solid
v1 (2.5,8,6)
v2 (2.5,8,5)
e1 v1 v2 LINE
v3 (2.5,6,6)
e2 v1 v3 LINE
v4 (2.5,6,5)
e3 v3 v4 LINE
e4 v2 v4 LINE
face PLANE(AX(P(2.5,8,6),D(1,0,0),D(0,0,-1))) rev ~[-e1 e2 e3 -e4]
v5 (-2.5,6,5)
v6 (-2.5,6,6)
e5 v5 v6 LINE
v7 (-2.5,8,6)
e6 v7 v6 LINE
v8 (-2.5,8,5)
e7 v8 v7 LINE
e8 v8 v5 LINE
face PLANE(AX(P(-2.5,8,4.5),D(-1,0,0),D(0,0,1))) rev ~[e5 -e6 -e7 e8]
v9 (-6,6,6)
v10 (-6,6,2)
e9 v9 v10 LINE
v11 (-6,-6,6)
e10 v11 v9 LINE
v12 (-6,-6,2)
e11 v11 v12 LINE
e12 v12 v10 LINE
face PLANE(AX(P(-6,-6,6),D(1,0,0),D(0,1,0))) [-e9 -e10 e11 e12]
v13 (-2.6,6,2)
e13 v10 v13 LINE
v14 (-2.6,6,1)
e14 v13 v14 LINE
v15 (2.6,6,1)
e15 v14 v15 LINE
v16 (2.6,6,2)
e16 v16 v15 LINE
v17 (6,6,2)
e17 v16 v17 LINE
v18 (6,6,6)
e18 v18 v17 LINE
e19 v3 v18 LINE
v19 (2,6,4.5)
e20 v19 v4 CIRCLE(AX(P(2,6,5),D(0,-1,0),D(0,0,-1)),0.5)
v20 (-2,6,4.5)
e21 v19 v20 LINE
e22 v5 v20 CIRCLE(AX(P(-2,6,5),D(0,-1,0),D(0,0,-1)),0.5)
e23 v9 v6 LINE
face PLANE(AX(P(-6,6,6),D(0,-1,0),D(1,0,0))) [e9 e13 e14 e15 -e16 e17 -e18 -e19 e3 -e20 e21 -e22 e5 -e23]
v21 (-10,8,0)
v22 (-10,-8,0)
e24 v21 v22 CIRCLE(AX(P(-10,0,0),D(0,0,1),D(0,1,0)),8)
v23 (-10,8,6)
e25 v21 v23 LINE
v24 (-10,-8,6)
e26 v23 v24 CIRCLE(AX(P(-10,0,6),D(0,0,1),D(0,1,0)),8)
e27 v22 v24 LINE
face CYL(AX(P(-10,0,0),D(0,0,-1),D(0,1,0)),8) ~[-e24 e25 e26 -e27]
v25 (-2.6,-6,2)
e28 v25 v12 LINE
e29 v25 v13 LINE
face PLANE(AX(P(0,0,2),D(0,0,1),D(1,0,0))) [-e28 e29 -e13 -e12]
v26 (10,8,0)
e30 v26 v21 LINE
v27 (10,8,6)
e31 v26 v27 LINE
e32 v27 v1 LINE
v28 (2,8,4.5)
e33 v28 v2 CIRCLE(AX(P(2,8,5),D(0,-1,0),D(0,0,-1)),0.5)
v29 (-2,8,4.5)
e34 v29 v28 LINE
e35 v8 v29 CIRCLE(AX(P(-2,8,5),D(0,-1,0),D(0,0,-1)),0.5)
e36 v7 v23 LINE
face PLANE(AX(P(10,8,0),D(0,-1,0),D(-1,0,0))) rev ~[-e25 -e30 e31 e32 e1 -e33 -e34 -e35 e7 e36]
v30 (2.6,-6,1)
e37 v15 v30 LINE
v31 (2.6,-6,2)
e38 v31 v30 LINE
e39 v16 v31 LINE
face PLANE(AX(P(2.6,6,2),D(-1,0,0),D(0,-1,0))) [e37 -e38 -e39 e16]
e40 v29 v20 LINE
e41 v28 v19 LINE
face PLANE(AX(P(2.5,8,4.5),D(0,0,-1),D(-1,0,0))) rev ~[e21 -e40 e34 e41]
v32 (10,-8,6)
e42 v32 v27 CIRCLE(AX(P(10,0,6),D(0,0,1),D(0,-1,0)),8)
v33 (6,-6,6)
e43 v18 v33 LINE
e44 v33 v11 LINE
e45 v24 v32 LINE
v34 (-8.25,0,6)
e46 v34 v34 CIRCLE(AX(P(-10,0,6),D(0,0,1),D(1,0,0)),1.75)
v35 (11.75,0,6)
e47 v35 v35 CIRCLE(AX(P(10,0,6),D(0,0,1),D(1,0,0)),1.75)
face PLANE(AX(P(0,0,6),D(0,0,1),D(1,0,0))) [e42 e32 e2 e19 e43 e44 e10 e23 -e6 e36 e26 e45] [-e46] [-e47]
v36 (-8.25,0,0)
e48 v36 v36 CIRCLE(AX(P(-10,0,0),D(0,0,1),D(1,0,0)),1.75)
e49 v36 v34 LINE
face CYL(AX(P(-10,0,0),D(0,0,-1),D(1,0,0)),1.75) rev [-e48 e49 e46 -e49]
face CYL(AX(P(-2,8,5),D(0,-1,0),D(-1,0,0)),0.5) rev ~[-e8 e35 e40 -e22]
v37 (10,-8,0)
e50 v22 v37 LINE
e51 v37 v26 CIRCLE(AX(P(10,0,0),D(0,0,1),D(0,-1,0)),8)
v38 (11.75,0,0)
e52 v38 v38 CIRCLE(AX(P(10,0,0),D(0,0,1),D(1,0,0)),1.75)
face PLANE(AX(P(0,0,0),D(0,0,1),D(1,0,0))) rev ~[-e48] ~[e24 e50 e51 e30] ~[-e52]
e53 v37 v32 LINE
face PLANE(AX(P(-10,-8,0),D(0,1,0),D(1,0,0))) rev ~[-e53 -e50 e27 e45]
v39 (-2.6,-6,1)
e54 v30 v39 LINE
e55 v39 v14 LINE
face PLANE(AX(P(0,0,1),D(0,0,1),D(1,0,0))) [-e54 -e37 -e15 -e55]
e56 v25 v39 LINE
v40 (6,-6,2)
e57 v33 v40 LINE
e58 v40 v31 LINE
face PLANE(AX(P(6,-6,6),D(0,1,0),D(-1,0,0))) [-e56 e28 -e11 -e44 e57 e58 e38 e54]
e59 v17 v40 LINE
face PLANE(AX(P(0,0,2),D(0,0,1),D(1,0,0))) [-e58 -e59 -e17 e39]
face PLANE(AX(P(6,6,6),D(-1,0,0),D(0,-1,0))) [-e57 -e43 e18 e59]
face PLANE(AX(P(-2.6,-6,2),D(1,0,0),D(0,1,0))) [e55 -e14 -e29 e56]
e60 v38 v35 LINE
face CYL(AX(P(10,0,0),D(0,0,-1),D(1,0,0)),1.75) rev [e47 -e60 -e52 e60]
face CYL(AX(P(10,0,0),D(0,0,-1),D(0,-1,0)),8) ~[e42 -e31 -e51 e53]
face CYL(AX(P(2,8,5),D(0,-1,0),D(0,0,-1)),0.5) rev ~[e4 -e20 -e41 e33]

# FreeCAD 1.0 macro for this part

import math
import FreeCAD as App
import Part
import Sketcher


def edges_at(feature, points):
    """Names of the edges that pass closest to the given points."""
    edges = feature.Shape.Edges
    near = lambda p: min(range(len(edges)), key=lambda i: edges[i].distToShape(Part.Vertex(*p))[0])
    return sorted({f"Edge{near(p) + 1}" for p in points})

doc = App.newDocument("Part")
body = doc.addObject("PartDesign::Body", "Body")

# Sketch on XY plane
sketch1 = body.newObject("Sketcher::SketchObject", "Sketch")
sketch1.AttachmentSupport = (doc.getObject("XY_Plane"), [""])
sketch1.MapMode = "FlatFace"
sketch1.addGeometry([
    Part.ArcOfCircle(Part.Circle(App.Vector(10, 0, 0), App.Vector(0, 0, 1), 8), math.radians(-90), math.radians(90)),  # 0
    Part.LineSegment(App.Vector(10, 8, 0), App.Vector(-10, 8, 0)),  # 1
    Part.ArcOfCircle(Part.Circle(App.Vector(-10, 0, 0), App.Vector(0, 0, 1), 8), math.radians(90), math.radians(270)),  # 2
    Part.LineSegment(App.Vector(-10, -8, 0), App.Vector(10, -8, 0)),  # 3
    Part.Circle(App.Vector(-10, 0, 0), App.Vector(0, 0, 1), 1.75),  # 4
    Part.Circle(App.Vector(10, 0, 0), App.Vector(0, 0, 1), 1.75),  # 5
], False)
sketch1.addConstraint([
    Sketcher.Constraint("Tangent", 0, 2, 1, 1),
    Sketcher.Constraint("Tangent", 1, 2, 2, 1),
    Sketcher.Constraint("Tangent", 2, 2, 3, 1),
    Sketcher.Constraint("Tangent", 3, 2, 0, 1),
    Sketcher.Constraint("Horizontal", 1),
    Sketcher.Constraint("Horizontal", 3),
    Sketcher.Constraint("Coincident", 4, 3, 2, 3),
    Sketcher.Constraint("Coincident", 5, 3, 0, 3),
    Sketcher.Constraint("Equal", 4, 5),
    Sketcher.Constraint("Symmetric", 0, 3, 2, 3, -1, 1),
    Sketcher.Constraint("Radius", 0, 8.0),
    Sketcher.Constraint("Diameter", 4, 3.5),
    Sketcher.Constraint("DistanceX", 1, 2, 1, 1, 20.0),
])
pad1 = body.newObject("PartDesign::Pad", "Pad")
pad1.Profile = sketch1
pad1.Length = 6

# Sketch on XY plane
sketch2 = body.newObject("Sketcher::SketchObject", "Sketch001")
sketch2.AttachmentSupport = (doc.getObject("XY_Plane"), [""])
sketch2.MapMode = "FlatFace"
sketch2.AttachmentOffset = App.Placement(App.Vector(0, 0, 6), App.Rotation())
sketch2.addGeometry([
    Part.LineSegment(App.Vector(-6, -6, 0), App.Vector(6, -6, 0)),
    Part.LineSegment(App.Vector(6, -6, 0), App.Vector(6, 6, 0)),
    Part.LineSegment(App.Vector(6, 6, 0), App.Vector(-6, 6, 0)),
    Part.LineSegment(App.Vector(-6, 6, 0), App.Vector(-6, -6, 0)),
], False)
sketch2.addConstraint([
    Sketcher.Constraint("Coincident", 0, 2, 1, 1),
    Sketcher.Constraint("Coincident", 1, 2, 2, 1),
    Sketcher.Constraint("Coincident", 2, 2, 3, 1),
    Sketcher.Constraint("Coincident", 3, 2, 0, 1),
    Sketcher.Constraint("Horizontal", 0),
    Sketcher.Constraint("Vertical", 1),
    Sketcher.Constraint("Horizontal", 2),
    Sketcher.Constraint("Vertical", 3),
    Sketcher.Constraint("Symmetric", 0, 2, 2, 2, -1, 1),
    Sketcher.Constraint("Equal", 2, 1),
    Sketcher.Constraint("DistanceX", 0, 1, 0, 2, 12.0),
])
pocket1 = body.newObject("PartDesign::Pocket", "Pocket")
pocket1.Profile = sketch2
pocket1.Length = 4

# Sketch on XZ plane
sketch3 = body.newObject("Sketcher::SketchObject", "Sketch002")
sketch3.AttachmentSupport = (doc.getObject("XZ_Plane"), [""])
sketch3.MapMode = "FlatFace"
sketch3.AttachmentOffset = App.Placement(App.Vector(0, 0, -8), App.Rotation())
sketch3.addGeometry([
    Part.LineSegment(App.Vector(2.5, 4.5, 0), App.Vector(-2.5, 4.5, 0)),
    Part.LineSegment(App.Vector(-2.5, 4.5, 0), App.Vector(-2.5, 6, 0)),
    Part.LineSegment(App.Vector(-2.5, 6, 0), App.Vector(2.5, 6, 0)),
    Part.LineSegment(App.Vector(2.5, 6, 0), App.Vector(2.5, 4.5, 0)),
], False)
sketch3.addConstraint([
    Sketcher.Constraint("Coincident", 0, 2, 1, 1),
    Sketcher.Constraint("Coincident", 1, 2, 2, 1),
    Sketcher.Constraint("Coincident", 2, 2, 3, 1),
    Sketcher.Constraint("Coincident", 3, 2, 0, 1),
    Sketcher.Constraint("Horizontal", 0),
    Sketcher.Constraint("Vertical", 1),
    Sketcher.Constraint("Horizontal", 2),
    Sketcher.Constraint("Vertical", 3),
    Sketcher.Constraint("DistanceX", 0, 2, 0, 1, 5.0),
    Sketcher.Constraint("DistanceY", 1, 1, 1, 2, 1.5),
    Sketcher.Constraint("DistanceY", -1, 1, 1, 2, 6.0),
    Sketcher.Constraint("DistanceX", 0, 2, -1, 1, 2.5),
])
pocket2 = body.newObject("PartDesign::Pocket", "Pocket001")
pocket2.Profile = sketch3
pocket2.Type = "UpToFirst"
pocket2.Reversed = True
doc.recompute()

fillet = body.newObject("PartDesign::Fillet", "Fillet")
fillet.Base = (pocket2, edges_at(pocket2, [(-2.5, 7, 4.5), (2.5, 7, 4.5)]))
fillet.Radius = 0.5

# Sketch on XY plane
sketch4 = body.newObject("Sketcher::SketchObject", "Sketch003")
sketch4.AttachmentSupport = (doc.getObject("XY_Plane"), [""])
sketch4.MapMode = "FlatFace"
sketch4.AttachmentOffset = App.Placement(App.Vector(0, 0, 2), App.Rotation())
sketch4.addGeometry([
    Part.LineSegment(App.Vector(-2.6, -6, 0), App.Vector(2.6, -6, 0)),
    Part.LineSegment(App.Vector(2.6, -6, 0), App.Vector(2.6, 6, 0)),
    Part.LineSegment(App.Vector(2.6, 6, 0), App.Vector(-2.6, 6, 0)),
    Part.LineSegment(App.Vector(-2.6, 6, 0), App.Vector(-2.6, -6, 0)),
], False)
sketch4.addConstraint([
    Sketcher.Constraint("Coincident", 0, 2, 1, 1),
    Sketcher.Constraint("Coincident", 1, 2, 2, 1),
    Sketcher.Constraint("Coincident", 2, 2, 3, 1),
    Sketcher.Constraint("Coincident", 3, 2, 0, 1),
    Sketcher.Constraint("Horizontal", 0),
    Sketcher.Constraint("Vertical", 1),
    Sketcher.Constraint("Horizontal", 2),
    Sketcher.Constraint("Vertical", 3),
    Sketcher.Constraint("Symmetric", 0, 2, 2, 2, -1, 1),
    Sketcher.Constraint("DistanceX", 0, 1, 0, 2, 5.2),
    Sketcher.Constraint("DistanceY", 1, 1, 1, 2, 12.0),
])
pocket3 = body.newObject("PartDesign::Pocket", "Pocket002")
pocket3.Profile = sketch4
pocket3.Length = 1

doc.recompute()
